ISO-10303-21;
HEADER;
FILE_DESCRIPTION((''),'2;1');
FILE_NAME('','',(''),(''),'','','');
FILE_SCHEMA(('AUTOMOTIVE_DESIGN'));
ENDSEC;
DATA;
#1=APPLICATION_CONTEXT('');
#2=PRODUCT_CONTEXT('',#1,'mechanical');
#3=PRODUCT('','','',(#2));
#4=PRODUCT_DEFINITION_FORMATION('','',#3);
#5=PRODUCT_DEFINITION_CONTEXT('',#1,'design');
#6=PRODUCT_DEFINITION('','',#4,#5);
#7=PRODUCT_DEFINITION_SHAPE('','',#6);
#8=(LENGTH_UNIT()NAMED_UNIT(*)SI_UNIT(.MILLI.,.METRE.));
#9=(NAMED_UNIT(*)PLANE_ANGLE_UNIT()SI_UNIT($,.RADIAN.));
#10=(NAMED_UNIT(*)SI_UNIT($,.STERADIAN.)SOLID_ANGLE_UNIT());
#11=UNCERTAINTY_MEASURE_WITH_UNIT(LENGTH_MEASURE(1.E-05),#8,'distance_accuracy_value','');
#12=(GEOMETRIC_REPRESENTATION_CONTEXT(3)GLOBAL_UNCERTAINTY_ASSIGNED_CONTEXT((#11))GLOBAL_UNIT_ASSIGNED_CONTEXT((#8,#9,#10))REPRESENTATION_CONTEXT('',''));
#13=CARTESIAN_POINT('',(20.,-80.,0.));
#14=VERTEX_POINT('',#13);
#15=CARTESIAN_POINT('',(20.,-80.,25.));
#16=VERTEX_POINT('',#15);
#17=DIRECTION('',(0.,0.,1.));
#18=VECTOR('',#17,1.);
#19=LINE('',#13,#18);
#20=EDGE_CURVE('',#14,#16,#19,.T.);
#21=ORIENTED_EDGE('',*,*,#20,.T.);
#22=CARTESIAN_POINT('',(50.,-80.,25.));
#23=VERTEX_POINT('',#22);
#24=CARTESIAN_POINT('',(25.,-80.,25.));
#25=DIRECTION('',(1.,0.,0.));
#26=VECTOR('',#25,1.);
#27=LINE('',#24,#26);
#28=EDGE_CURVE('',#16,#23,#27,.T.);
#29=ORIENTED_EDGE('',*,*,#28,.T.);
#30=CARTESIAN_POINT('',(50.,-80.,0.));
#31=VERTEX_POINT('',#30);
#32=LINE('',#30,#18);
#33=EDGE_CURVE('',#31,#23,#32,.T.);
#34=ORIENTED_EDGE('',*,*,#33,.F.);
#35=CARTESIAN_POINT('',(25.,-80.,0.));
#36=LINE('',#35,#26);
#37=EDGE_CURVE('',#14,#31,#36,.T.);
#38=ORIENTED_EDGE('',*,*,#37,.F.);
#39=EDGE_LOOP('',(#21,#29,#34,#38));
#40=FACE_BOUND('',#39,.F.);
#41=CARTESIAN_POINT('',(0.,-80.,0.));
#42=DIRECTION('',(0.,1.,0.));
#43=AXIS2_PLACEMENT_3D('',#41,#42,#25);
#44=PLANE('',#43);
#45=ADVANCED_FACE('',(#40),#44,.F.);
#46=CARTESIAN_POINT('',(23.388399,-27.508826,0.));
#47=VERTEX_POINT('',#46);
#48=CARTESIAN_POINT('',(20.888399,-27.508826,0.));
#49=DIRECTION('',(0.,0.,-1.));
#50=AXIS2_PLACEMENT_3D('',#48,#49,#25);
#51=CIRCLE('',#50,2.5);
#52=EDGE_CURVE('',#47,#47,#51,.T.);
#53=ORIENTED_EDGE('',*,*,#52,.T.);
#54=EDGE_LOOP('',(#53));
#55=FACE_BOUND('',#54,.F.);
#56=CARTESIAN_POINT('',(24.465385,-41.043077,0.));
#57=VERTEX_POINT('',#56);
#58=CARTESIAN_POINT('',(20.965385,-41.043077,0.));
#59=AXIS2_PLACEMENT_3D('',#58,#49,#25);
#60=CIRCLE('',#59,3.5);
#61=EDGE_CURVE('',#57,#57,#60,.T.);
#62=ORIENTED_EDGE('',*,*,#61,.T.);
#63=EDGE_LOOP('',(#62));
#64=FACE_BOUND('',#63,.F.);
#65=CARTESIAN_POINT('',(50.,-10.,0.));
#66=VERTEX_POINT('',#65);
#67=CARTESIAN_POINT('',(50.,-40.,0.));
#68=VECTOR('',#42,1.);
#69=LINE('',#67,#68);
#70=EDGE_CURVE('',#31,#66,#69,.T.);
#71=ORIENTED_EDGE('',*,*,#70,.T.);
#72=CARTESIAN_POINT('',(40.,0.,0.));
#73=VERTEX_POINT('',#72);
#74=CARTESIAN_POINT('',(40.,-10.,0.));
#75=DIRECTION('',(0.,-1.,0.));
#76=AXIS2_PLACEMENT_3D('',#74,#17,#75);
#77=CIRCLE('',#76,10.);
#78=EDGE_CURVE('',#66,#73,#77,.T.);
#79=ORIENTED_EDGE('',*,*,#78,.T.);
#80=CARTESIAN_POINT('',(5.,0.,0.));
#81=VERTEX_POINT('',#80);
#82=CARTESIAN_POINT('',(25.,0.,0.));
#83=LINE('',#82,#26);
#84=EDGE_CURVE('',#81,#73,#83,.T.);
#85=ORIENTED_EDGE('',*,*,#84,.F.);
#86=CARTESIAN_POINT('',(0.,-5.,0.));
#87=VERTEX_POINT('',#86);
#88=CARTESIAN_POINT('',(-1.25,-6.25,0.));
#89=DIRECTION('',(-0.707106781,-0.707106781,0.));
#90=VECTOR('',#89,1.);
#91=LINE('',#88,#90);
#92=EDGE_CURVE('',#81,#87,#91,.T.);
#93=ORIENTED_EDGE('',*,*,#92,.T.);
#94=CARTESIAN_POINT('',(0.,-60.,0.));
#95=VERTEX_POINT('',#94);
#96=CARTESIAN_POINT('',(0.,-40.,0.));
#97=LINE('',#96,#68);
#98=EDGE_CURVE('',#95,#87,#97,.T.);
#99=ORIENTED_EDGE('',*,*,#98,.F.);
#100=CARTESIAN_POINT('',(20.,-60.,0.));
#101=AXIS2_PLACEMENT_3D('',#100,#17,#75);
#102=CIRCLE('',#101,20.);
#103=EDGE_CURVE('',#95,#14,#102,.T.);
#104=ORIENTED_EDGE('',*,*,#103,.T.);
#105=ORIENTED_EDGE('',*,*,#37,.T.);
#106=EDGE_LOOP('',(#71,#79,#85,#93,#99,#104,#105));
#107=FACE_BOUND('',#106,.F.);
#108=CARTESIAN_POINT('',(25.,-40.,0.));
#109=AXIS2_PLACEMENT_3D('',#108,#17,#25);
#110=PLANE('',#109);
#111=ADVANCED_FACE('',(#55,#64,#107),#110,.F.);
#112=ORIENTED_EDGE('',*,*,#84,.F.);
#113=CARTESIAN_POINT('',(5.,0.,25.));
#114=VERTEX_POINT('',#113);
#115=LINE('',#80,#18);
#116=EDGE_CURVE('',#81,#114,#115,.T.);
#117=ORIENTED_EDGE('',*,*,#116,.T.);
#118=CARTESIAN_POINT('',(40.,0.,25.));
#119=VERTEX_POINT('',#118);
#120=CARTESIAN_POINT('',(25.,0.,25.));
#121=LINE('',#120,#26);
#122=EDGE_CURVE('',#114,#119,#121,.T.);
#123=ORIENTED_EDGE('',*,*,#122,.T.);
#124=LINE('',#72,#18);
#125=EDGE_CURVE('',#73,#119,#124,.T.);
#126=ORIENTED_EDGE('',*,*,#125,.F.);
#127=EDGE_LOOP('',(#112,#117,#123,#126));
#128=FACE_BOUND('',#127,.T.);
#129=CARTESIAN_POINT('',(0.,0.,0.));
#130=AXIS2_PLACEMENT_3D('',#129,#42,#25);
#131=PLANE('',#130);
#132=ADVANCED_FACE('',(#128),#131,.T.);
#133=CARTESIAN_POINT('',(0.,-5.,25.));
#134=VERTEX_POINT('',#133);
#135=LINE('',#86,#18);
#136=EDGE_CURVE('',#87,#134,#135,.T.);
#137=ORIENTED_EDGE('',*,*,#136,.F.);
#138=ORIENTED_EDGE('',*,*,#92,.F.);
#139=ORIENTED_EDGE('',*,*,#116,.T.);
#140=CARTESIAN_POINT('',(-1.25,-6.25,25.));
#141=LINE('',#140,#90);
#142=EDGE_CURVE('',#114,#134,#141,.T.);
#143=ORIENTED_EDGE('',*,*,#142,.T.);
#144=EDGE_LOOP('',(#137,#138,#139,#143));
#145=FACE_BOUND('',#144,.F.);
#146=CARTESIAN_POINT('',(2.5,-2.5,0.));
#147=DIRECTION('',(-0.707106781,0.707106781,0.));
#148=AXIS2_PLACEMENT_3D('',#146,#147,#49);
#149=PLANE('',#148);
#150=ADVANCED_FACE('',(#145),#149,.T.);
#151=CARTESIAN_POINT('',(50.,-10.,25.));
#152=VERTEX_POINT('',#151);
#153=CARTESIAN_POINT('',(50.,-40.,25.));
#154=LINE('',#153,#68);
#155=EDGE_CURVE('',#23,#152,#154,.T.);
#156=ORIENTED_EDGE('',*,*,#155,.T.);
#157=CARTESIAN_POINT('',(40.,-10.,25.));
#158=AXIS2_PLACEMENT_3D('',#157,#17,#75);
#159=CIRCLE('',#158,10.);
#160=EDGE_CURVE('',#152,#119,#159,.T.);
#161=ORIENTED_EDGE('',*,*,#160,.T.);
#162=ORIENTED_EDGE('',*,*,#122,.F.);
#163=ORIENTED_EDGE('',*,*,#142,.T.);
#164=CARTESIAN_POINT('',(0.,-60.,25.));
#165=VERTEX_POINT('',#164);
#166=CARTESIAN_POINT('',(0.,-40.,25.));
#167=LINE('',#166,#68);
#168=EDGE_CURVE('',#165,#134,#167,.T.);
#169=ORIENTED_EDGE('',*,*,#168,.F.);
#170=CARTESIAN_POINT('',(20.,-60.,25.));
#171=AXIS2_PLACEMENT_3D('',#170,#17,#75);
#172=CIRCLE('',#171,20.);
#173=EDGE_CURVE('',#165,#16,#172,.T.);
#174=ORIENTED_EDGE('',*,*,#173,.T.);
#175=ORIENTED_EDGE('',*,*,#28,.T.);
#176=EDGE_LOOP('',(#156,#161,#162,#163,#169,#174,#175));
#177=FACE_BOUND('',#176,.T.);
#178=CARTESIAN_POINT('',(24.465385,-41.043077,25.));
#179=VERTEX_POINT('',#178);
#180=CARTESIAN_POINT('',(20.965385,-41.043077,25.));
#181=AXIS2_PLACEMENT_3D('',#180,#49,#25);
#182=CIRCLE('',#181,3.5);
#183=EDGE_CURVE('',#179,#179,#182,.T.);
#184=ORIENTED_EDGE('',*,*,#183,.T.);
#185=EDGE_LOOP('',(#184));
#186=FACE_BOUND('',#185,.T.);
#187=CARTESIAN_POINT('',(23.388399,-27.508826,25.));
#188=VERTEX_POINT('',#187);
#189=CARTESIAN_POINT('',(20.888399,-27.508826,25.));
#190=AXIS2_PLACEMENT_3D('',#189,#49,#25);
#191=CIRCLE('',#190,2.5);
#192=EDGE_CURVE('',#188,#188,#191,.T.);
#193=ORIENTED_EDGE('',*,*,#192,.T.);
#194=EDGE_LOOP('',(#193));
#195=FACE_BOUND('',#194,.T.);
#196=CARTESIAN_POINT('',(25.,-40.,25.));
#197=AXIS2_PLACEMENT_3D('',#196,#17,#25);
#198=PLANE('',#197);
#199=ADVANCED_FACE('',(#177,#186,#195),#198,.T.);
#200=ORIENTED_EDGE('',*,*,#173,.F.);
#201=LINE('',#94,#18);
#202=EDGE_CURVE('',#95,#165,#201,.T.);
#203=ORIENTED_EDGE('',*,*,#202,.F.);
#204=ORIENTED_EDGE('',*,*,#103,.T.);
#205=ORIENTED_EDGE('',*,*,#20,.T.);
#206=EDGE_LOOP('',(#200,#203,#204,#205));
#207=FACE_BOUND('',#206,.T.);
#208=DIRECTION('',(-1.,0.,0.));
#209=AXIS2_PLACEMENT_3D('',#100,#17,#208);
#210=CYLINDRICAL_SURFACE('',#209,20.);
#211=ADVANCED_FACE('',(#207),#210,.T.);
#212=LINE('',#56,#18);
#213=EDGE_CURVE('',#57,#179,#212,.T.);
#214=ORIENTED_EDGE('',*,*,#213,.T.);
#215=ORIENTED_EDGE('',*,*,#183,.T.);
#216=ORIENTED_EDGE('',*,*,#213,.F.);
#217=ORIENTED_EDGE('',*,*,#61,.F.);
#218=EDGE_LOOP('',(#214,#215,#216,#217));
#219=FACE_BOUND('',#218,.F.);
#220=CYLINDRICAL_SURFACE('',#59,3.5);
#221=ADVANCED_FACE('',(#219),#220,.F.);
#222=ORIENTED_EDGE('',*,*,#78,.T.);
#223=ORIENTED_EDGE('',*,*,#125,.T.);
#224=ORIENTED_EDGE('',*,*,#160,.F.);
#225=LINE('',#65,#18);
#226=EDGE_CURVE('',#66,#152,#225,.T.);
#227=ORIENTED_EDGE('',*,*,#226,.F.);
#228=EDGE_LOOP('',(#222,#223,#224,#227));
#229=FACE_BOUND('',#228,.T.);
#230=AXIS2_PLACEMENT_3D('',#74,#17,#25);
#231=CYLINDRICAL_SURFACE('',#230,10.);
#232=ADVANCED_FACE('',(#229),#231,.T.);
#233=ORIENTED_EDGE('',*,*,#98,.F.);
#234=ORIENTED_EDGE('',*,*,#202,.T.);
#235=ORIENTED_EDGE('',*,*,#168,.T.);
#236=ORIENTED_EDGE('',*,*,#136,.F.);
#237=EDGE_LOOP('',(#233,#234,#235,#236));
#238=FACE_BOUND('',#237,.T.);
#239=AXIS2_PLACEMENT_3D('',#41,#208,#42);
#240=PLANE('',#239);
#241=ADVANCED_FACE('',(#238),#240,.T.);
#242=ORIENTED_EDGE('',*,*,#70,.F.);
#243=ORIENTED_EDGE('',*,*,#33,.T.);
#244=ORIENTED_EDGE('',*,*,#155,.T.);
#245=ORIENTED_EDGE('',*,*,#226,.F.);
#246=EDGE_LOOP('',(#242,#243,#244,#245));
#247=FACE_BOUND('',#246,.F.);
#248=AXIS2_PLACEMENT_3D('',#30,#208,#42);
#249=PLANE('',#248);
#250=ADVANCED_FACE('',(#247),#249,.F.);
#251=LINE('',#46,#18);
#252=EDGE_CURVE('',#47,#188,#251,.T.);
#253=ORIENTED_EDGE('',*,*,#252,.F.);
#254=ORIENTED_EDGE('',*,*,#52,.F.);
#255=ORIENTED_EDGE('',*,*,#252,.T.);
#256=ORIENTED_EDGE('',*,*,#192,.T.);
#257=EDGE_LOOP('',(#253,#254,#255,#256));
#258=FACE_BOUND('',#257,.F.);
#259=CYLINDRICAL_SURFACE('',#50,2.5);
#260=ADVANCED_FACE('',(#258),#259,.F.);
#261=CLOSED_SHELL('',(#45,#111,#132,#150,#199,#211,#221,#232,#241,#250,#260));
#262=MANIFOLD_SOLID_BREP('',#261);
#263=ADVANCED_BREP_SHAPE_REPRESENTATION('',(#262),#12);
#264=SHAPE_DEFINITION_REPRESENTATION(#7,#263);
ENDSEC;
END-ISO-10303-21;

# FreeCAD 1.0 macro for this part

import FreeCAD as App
import Part
import Sketcher
from FreeCAD import Vector
Q = App.Units.Quantity


def edges_at(feature, points):
    """Names of the edges that pass closest to the given points."""
    edges = feature.Shape.Edges
    near = lambda p: min(range(len(edges)), key=lambda i: edges[i].distToShape(Part.Vertex(*p))[0])
    return sorted({f"Edge{near(p) + 1}" for p in points})


def add_polygon(sketch, points):
    """Adds a closed chain of lines whose ends are joined by coincident constraints."""
    first, n = sketch.GeometryCount, len(points)
    for a, b in zip(points, points[1:] + points[:1]):
        sketch.addGeometry(Part.LineSegment(App.Vector(*a, 0), App.Vector(*b, 0)), False)
    for i in range(n):
        sketch.addConstraint(Sketcher.Constraint("Coincident", first + i, 2, first + (i + 1) % n, 1))

doc = App.newDocument("Part")
params = doc.addObject("Spreadsheet::Sheet", "Params")
for row, (alias, value) in enumerate([
    ("sketch1_width", "50 mm"),
    ("sketch1_height", "80 mm"),
    ("pad1_length", "25 mm"),
    ("fillet_radius", "10 mm"),
    ("chamfer_size", "5 mm"),
    ("fillet2_radius", "20 mm"),
    ("sketch2_diameter", "5 mm"),
    ("sketch2_diameter2", "7 mm"),
    ("pocket1_length", "30 mm"),
], start=1):
    params.set(f"A{row}", alias)
    params.set(f"B{row}", "=" + value)
    params.setAlias(f"B{row}", alias)

body = doc.addObject("PartDesign::Body", "Body")

sketch1 = body.newObject("Sketcher::SketchObject", "Sketch")
sketch1.AttachmentSupport = (doc.getObject("XY_Plane"), [""])
sketch1.MapMode = "FlatFace"
add_polygon(sketch1, [(0, 0), (0, -80), (50, -80), (50, 0)])
sketch1.addConstraint([
    Sketcher.Constraint("Vertical", 0),
    Sketcher.Constraint("Horizontal", 1),
    Sketcher.Constraint("Vertical", 2),
    Sketcher.Constraint("Horizontal", 3),
    Sketcher.Constraint("Coincident", 3, 2, -1, 1),
    Sketcher.Constraint("DistanceX", 1, 1, 1, 2, Q("50 mm")),
    Sketcher.Constraint("DistanceY", 0, 2, 0, 1, Q("80 mm")),
])
sketch1.setExpression("Constraints[9]", "Params.sketch1_width")
sketch1.setExpression("Constraints[10]", "Params.sketch1_height")
pad1 = body.newObject("PartDesign::Pad", "Pad")
pad1.Profile = sketch1
pad1.setExpression("Length", "Params.pad1_length")
doc.recompute()

fillet = body.newObject("PartDesign::Fillet", "Fillet")
fillet.Base = (pad1, edges_at(pad1, [(50, 0, 12.5)]))
fillet.setExpression("Radius", "Params.fillet_radius")
doc.recompute()

chamfer = body.newObject("PartDesign::Chamfer", "Chamfer")
chamfer.Base = (fillet, edges_at(fillet, [(0, 0, 12.5)]))
chamfer.setExpression("Size", "Params.chamfer_size")
doc.recompute()

fillet2 = body.newObject("PartDesign::Fillet", "Fillet001")
fillet2.Base = (chamfer, edges_at(chamfer, [(0, -80, 12.5)]))
fillet2.setExpression("Radius", "Params.fillet2_radius")

sketch2 = body.newObject("Sketcher::SketchObject", "Sketch001")
sketch2.AttachmentSupport = (doc.getObject("XY_Plane"), [""])
sketch2.MapMode = "FlatFace"
sketch2.addGeometry([
    Part.Circle(Vector(20.9, -27.5, 0), Vector(0, 0, 1), 2.5),
    Part.Circle(Vector(21, -41, 0), Vector(0, 0, 1), 3.5),
], False)
sketch2.addConstraint([
    Sketcher.Constraint("Diameter", 0, Q("5 mm")),
    Sketcher.Constraint("Diameter", 1, Q("7 mm")),
    Sketcher.Constraint("DistanceX", -1, 1, 0, 3, Q("20.888399 mm")),
    Sketcher.Constraint("DistanceY", 1, 3, 0, 3, Q("13.534251 mm")),
    Sketcher.Constraint("DistanceY", 0, 3, -1, 1, Q("27.508826 mm")),
    Sketcher.Constraint("DistanceX", -1, 1, 1, 3, Q("20.965385 mm")),
])
sketch2.setExpression("Constraints[0]", "Params.sketch2_diameter")
sketch2.setExpression("Constraints[1]", "Params.sketch2_diameter2")
pocket1 = body.newObject("PartDesign::Pocket", "Pocket")
pocket1.Profile = sketch2
pocket1.setExpression("Length", "Params.pocket1_length")
pocket1.Reversed = True

doc.recompute()
